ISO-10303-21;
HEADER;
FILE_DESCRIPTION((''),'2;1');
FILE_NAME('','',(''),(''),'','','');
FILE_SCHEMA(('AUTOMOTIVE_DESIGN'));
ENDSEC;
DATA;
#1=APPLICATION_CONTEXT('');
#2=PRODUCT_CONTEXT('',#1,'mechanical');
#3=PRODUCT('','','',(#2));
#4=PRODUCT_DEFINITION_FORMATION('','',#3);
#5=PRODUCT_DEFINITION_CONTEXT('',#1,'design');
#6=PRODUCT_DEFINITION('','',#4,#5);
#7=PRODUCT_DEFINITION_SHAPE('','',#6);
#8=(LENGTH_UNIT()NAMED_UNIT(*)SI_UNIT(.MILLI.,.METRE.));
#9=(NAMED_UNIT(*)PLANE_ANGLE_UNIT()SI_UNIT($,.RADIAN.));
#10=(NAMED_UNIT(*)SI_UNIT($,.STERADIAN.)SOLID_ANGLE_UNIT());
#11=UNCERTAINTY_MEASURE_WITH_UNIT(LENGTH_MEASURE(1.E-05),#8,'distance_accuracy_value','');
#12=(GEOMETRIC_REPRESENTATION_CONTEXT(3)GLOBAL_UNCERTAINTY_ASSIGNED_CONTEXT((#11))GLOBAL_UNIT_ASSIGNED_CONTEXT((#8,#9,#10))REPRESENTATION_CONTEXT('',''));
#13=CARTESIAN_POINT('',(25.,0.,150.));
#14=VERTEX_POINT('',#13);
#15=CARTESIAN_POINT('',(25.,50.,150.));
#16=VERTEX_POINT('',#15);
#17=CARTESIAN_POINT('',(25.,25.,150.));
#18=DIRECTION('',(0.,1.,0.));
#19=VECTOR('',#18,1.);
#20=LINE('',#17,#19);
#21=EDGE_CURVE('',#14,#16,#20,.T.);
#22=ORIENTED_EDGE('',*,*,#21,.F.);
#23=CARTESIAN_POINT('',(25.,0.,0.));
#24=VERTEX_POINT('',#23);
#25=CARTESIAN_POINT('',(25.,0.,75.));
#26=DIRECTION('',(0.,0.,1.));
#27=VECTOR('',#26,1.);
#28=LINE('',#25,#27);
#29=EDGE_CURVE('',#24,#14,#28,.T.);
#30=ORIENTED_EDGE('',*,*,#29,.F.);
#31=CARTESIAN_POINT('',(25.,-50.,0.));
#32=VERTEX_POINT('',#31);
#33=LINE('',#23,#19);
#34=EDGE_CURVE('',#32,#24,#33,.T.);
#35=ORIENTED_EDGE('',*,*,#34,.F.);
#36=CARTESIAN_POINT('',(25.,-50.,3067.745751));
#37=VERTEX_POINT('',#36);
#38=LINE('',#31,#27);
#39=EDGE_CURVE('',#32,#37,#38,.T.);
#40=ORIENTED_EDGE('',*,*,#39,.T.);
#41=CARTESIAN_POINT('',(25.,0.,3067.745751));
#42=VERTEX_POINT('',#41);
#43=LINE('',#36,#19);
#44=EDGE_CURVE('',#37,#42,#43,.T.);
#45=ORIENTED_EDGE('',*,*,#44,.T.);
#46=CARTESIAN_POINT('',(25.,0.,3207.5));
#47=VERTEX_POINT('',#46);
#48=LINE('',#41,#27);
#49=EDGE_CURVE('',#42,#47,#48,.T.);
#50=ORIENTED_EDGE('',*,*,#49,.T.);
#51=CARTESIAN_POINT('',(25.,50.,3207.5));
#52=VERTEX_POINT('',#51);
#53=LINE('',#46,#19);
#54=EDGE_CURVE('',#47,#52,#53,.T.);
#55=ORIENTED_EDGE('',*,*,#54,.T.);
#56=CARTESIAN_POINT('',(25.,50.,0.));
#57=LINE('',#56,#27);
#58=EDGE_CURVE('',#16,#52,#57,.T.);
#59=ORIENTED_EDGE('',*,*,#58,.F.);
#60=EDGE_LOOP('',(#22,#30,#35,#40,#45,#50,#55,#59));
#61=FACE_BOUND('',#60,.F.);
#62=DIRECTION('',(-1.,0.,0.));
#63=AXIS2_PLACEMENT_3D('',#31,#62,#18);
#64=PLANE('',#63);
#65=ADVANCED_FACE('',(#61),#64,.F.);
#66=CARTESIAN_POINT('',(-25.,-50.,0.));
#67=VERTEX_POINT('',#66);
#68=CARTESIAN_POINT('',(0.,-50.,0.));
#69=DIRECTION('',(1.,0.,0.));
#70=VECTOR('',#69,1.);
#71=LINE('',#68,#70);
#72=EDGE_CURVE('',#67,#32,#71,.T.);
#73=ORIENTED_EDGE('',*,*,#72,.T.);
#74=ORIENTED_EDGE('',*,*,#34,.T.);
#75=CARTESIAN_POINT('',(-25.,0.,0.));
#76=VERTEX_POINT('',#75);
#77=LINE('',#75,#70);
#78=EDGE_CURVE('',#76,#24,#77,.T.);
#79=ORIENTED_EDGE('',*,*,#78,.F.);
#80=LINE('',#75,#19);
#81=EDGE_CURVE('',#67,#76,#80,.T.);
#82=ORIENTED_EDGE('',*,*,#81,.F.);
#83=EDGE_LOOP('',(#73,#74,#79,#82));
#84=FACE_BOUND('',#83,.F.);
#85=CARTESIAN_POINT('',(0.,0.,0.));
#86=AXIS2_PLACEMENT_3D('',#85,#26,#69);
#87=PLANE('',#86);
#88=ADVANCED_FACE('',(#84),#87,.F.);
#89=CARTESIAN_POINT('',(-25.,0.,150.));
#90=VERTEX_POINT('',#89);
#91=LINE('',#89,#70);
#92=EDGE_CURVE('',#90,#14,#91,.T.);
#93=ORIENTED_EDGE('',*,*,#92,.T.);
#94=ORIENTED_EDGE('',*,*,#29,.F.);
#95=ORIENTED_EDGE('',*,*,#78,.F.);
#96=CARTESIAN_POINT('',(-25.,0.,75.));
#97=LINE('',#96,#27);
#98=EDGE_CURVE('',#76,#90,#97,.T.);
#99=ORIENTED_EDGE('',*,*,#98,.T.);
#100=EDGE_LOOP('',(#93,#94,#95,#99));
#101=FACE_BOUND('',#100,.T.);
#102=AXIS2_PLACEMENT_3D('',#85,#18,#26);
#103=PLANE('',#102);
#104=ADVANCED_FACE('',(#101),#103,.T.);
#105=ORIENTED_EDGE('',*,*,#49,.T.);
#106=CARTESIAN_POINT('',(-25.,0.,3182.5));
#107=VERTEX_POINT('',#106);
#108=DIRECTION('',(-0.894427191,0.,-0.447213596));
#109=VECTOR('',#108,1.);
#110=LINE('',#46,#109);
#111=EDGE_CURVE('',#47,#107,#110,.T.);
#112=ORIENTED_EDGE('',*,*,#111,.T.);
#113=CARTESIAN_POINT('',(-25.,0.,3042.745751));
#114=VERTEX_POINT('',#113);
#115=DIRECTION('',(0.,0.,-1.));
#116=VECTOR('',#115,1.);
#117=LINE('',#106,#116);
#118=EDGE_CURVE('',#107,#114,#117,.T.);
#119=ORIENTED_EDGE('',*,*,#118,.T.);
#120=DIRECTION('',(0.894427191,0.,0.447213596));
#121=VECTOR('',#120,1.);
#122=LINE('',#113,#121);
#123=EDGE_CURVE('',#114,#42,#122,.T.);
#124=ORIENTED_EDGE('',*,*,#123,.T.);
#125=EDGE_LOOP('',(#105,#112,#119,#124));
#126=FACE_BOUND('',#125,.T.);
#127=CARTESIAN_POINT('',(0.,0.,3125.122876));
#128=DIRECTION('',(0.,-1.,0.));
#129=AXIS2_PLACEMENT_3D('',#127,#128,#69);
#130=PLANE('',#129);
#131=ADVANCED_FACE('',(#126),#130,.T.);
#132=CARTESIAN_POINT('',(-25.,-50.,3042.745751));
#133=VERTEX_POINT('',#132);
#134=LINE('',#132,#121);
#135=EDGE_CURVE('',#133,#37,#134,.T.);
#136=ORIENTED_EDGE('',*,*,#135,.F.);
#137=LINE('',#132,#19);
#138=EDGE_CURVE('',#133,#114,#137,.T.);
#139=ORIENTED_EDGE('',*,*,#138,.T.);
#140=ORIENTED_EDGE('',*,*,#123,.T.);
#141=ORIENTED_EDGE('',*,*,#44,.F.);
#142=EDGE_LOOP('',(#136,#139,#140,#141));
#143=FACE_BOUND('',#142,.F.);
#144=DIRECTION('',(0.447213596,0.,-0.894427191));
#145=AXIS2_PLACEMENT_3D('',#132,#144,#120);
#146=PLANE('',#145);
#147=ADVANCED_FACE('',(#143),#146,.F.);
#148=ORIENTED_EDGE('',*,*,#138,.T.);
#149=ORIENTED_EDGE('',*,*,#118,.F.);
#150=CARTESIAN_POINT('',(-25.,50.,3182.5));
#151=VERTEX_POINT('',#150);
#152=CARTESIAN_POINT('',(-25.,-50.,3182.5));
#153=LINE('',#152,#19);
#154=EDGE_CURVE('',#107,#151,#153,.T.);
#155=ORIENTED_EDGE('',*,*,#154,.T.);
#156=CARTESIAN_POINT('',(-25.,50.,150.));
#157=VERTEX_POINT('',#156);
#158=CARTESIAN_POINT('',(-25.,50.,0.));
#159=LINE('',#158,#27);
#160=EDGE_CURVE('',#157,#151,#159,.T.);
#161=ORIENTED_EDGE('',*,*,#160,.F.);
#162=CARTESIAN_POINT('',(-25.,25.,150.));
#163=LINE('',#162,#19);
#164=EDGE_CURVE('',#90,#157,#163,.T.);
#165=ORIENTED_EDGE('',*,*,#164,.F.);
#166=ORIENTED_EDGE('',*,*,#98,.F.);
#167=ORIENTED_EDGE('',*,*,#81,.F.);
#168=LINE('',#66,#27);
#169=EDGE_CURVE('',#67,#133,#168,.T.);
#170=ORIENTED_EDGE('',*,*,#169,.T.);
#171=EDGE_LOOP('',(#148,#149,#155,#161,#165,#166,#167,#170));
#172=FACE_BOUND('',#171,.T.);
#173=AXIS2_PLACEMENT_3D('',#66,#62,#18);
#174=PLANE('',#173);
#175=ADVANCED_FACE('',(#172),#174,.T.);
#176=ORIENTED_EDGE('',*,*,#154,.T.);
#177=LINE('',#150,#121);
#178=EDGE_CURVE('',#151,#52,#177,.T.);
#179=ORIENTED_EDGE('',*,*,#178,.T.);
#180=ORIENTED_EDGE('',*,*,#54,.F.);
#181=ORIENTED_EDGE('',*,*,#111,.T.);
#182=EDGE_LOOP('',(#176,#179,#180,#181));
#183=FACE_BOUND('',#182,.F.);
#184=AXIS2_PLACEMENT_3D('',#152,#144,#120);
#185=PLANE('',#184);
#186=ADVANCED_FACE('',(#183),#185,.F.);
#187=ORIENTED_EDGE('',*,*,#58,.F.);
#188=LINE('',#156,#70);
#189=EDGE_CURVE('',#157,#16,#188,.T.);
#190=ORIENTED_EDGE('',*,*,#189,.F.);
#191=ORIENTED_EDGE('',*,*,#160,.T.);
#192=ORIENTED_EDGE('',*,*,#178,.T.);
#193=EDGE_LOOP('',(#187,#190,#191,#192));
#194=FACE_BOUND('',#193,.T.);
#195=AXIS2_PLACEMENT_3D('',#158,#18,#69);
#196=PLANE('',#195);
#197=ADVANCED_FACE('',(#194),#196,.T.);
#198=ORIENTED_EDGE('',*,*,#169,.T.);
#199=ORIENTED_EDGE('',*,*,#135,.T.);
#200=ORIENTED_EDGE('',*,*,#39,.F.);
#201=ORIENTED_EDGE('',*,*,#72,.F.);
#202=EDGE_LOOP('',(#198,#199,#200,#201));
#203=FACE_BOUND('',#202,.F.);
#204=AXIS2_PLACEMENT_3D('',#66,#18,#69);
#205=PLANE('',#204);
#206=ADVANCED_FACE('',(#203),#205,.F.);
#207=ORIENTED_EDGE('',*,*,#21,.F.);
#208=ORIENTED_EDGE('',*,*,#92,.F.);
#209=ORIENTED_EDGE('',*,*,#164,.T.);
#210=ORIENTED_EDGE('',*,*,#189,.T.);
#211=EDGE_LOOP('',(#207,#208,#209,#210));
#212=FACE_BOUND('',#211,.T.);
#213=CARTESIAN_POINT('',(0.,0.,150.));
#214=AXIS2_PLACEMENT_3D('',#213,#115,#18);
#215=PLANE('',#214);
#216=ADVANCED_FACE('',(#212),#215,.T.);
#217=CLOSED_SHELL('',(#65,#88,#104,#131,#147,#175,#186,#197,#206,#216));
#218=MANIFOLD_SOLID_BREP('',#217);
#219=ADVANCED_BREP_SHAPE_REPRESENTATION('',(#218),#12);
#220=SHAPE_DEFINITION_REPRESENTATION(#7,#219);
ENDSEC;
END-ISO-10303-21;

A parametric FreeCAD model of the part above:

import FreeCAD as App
import Part
import Sketcher
from FreeCAD import Vector


def add_polygon(sketch, points):
    """Adds a closed chain of lines whose ends are joined by coincident constraints."""
    first, n = sketch.GeometryCount, len(points)
    for a, b in zip(points, points[1:] + points[:1]):
        sketch.addGeometry(Part.LineSegment(App.Vector(*a, 0), App.Vector(*b, 0)), False)
    for i in range(n):
        sketch.addConstraint(Sketcher.Constraint("Coincident", first + i, 2, first + (i + 1) % n, 1))

doc = App.newDocument("Part")
body = doc.addObject("PartDesign::Body", "Body")

# Sketch on XY plane
sketch1 = doc.addObject("Sketcher::SketchObject", "Sketch")
body.addObject(sketch1)
sketch1.AttachmentSupport = (doc.XY_Plane, [""])
sketch1.MapMode = "FlatFace"
add_polygon(sketch1, [(-25, 50), (-25, -50), (25, -50), (25, 50)])  # lines 0-3
sketch1.addConstraint([
    Sketcher.Constraint("Vertical", 0),
    Sketcher.Constraint("Horizontal", 1),
    Sketcher.Constraint("Vertical", 2),
    Sketcher.Constraint("Horizontal", 3),
    Sketcher.Constraint("Symmetric", 0, 2, 2, 2, -1, 1),
    Sketcher.Constraint("DistanceX", 1, 1, 1, 2, 50.0),
    Sketcher.Constraint("DistanceY", 0, 2, 0, 1, 100.0),
])
pad1 = doc.addObject("PartDesign::Pad", "Pad")
body.addObject(pad1)
pad1.Profile = sketch1
pad1.Length = 3207.5

# Sketch on YZ plane
sketch2 = doc.addObject("Sketcher::SketchObject", "Sketch001")
body.addObject(sketch2)
sketch2.AttachmentSupport = (doc.YZ_Plane, [""])
sketch2.MapMode = "FlatFace"
add_polygon(sketch2, [(0, 150), (0, 0), (50, 0), (50, 150)])  # lines 0-3
sketch2.addConstraint([
    Sketcher.Constraint("Vertical", 0),
    Sketcher.Constraint("Horizontal", 1),
    Sketcher.Constraint("Vertical", 2),
    Sketcher.Constraint("Horizontal", 3),
    Sketcher.Constraint("Coincident", 0, 2, -1, 1),
    Sketcher.Constraint("DistanceX", 1, 1, 1, 2, 50.0),
    Sketcher.Constraint("DistanceY", 0, 2, 0, 1, 150.0),
])
pocket1 = doc.addObject("PartDesign::Pocket", "Pocket")
body.addObject(pocket1)
pocket1.Profile = sketch2
pocket1.Type = "ThroughAll"
pocket1.Midplane = True

# Sketch on XZ plane
sketch3 = doc.addObject("Sketcher::SketchObject", "Sketch002")
body.addObject(sketch3)
sketch3.AttachmentSupport = (doc.XZ_Plane, [""])
sketch3.MapMode = "FlatFace"
sketch3.AttachmentOffset = App.Placement(Vector(0, 0, 50), App.Rotation())
add_polygon(sketch3, [(-25, 3182), (25, 3208), (-25, 3208)])  # lines 0-2
sketch3.addConstraint([
    Sketcher.Constraint("Horizontal", 1),
    Sketcher.Constraint("Vertical", 2),
    Sketcher.Constraint("DistanceX", 1, 2, 1, 1, 50.0),
    Sketcher.Constraint("DistanceY", 2, 2, 2, 1, 25.0),
    Sketcher.Constraint("DistanceX", -1, 1, 0, 2, 25.0),
    Sketcher.Constraint("DistanceY", -1, 1, 0, 2, 3207.5),
])
pocket2 = doc.addObject("PartDesign::Pocket", "Pocket001")
body.addObject(pocket2)
pocket2.Profile = sketch3
pocket2.Type = "ThroughAll"

# Sketch on XZ plane
sketch4 = doc.addObject("Sketcher::SketchObject", "Sketch003")
body.addObject(sketch4)
sketch4.AttachmentSupport = (doc.XZ_Plane, [""])
sketch4.MapMode = "FlatFace"
sketch4.AttachmentOffset = App.Placement(Vector(0, 0, 50), App.Rotation())
add_polygon(sketch4, [(-25, 3182), (-25, 3043), (25, 3068), (25, 3208)])  # lines 0-3
sketch4.addConstraint([
    Sketcher.Constraint("Vertical", 0),
    Sketcher.Constraint("Vertical", 2),
    Sketcher.Constraint("Parallel", 1, 3),
    Sketcher.Constraint("DistanceX", 0, 2, -1, 1, 25.0),
    Sketcher.Constraint("DistanceX", -1, 1, 1, 2, 25.0),
    Sketcher.Constraint("DistanceY", 0, 2, 1, 2, 25.0),
    Sketcher.Constraint("DistanceY", -1, 1, 2, 2, 3207.5),
    Sketcher.Constraint("DistanceY", 0, 2, 0, 1, 139.754249),
])
pocket3 = doc.addObject("PartDesign::Pocket", "Pocket002")
body.addObject(pocket3)
pocket3.Profile = sketch4
pocket3.Length = 50

doc.recompute()
